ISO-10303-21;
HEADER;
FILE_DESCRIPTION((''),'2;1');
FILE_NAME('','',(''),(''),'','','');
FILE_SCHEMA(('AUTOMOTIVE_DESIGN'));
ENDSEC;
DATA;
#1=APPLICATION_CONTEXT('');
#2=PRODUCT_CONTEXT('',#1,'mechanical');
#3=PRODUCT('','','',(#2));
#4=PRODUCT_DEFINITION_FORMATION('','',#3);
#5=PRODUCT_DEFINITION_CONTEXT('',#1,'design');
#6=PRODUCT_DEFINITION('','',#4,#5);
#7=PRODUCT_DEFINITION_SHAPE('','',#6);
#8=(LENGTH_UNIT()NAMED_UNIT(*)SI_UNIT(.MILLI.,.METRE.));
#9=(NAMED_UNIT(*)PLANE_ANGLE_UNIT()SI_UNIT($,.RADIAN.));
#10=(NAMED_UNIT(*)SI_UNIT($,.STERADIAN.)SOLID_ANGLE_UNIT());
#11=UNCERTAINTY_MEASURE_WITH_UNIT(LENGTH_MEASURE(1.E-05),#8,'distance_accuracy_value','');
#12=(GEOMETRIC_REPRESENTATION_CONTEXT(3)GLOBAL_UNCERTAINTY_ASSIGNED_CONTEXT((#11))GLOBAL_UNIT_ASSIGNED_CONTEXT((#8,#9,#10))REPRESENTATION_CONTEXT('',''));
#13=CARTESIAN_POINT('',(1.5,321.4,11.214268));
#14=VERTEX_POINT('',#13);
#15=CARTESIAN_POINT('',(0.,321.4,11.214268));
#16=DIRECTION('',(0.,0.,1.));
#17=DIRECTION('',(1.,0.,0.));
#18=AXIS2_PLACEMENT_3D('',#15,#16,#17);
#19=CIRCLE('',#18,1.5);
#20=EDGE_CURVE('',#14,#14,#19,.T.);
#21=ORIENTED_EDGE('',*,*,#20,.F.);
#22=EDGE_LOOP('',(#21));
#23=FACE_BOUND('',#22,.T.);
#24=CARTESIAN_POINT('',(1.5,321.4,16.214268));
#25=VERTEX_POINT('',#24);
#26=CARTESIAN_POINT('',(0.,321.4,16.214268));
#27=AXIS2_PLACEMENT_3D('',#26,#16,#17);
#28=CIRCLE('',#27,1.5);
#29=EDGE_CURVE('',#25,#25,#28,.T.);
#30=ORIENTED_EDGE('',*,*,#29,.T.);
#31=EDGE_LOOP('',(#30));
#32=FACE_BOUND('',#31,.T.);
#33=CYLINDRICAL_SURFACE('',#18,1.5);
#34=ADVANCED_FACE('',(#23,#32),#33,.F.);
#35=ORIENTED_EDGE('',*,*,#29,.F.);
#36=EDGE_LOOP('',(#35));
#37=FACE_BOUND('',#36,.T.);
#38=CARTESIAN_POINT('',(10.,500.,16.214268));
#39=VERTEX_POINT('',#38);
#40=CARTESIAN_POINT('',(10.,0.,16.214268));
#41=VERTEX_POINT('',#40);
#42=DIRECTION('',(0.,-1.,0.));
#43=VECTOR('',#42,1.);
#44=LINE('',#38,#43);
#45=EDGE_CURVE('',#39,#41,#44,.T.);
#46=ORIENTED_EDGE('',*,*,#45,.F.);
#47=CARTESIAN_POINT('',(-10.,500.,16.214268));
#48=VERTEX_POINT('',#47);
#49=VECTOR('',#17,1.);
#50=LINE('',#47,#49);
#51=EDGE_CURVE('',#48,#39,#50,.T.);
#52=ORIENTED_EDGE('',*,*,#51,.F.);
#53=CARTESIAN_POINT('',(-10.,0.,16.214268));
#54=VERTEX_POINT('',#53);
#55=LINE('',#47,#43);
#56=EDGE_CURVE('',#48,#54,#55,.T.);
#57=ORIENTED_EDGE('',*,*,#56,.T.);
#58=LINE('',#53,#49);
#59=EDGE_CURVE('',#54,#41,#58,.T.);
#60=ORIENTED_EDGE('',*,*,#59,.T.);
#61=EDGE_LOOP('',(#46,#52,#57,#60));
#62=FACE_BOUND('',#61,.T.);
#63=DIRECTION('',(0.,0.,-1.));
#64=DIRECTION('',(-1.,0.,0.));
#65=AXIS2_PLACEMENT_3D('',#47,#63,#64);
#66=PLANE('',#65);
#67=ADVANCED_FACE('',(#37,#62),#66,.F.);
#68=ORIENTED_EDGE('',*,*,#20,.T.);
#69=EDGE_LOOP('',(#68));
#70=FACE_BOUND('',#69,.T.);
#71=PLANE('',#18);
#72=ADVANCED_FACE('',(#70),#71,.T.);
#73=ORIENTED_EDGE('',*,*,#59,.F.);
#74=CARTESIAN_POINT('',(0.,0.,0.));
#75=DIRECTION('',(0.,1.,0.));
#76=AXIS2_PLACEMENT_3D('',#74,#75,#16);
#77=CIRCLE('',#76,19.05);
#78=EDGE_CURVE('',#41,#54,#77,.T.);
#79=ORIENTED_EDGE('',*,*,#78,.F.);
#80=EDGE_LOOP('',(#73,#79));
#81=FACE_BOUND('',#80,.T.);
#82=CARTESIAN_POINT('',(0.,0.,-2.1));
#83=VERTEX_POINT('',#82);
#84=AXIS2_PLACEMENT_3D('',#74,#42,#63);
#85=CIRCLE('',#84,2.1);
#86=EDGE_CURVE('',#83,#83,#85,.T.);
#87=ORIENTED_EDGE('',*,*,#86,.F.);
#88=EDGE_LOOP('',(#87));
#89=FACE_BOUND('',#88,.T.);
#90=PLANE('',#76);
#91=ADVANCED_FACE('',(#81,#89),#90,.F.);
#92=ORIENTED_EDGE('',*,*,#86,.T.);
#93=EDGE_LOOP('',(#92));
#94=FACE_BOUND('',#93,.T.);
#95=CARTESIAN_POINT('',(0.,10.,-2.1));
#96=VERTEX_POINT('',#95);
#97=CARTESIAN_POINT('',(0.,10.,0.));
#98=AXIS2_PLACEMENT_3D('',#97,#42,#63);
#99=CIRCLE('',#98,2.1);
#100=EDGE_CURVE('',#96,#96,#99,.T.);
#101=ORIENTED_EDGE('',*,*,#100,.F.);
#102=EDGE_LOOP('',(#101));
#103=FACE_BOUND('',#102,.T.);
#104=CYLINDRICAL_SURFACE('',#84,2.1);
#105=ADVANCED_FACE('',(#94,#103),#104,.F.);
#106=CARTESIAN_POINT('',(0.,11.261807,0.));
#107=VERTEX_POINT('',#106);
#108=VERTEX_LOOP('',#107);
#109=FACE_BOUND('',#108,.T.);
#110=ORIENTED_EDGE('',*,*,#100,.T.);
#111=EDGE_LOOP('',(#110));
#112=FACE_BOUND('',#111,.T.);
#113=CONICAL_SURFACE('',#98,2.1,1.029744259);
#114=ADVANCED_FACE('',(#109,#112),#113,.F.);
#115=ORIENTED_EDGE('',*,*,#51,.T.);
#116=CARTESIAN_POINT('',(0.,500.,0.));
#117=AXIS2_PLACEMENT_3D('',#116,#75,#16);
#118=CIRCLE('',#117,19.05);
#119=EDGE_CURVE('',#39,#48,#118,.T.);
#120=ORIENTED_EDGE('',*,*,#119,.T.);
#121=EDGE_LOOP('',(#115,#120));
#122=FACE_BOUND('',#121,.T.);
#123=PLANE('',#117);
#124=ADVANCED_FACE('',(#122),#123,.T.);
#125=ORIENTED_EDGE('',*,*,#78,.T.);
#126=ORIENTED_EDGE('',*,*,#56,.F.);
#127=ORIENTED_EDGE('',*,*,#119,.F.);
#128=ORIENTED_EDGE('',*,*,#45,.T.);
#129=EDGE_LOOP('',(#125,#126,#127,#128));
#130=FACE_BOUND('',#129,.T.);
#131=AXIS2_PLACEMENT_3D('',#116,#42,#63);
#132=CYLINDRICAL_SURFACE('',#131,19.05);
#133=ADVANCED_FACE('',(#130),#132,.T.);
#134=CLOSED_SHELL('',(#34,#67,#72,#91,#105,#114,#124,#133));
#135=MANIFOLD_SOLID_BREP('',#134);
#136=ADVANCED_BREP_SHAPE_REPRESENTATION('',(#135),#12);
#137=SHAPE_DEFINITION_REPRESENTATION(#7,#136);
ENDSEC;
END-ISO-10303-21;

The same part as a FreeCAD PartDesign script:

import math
import FreeCAD as App
import Part
import Sketcher
from FreeCAD import Vector

doc = App.newDocument("Part")
params = doc.addObject("Spreadsheet::Sheet", "Params")
for row, (alias, value) in enumerate([
    ("sketch1_width", "20 mm"),
    ("sketch1_radius", "19.05 mm"),
    ("pad1_length", "500 mm"),
    ("sketch2_diameter", "3 mm"),
    ("pocket1_length", "5 mm"),
    ("sketch3_diameter", "4.2 mm"),
    ("hole_diameter", "4.2 mm"),
    ("hole_depth", "10 mm"),
], start=1):
    params.set(f"A{row}", alias)
    params.set(f"B{row}", "=" + value)
    params.setAlias(f"B{row}", alias)

body = doc.addObject("PartDesign::Body", "Body")

# Sketch on XZ plane
sketch1 = body.newObject("Sketcher::SketchObject", "Sketch")
sketch1.AttachmentSupport = (doc.getObject("XZ_Plane"), [""])
sketch1.MapMode = "FlatFace"
sketch1.addGeometry([
    Part.LineSegment(Vector(-10, 16, 0), Vector(10, 16, 0)),
    Part.ArcOfCircle(Part.Circle(Vector(0, 0, 0), Vector(0, 0, 1), 19), math.radians(122), math.radians(418)),
], False)
sketch1.addConstraint([
    Sketcher.Constraint("Coincident", 0, 1, 1, 1),
    Sketcher.Constraint("Coincident", 1, 2, 0, 2),
    Sketcher.Constraint("Horizontal", 0),
    Sketcher.Constraint("Coincident", 1, 3, -1, 1),
    Sketcher.Constraint("DistanceX", 0, 1, 0, 2, 20.0),
    Sketcher.Constraint("Radius", 1, 19.05),
])
sketch1.setExpression("Constraints[4]", "Params.sketch1_width")
sketch1.setExpression("Constraints[5]", "Params.sketch1_radius")
pad1 = body.newObject("PartDesign::Pad", "Pad")
pad1.Profile = sketch1
pad1.setExpression("Length", "Params.pad1_length")
pad1.Reversed = True

# Sketch on XY plane
sketch2 = body.newObject("Sketcher::SketchObject", "Sketch001")
sketch2.AttachmentSupport = (doc.getObject("XY_Plane"), [""])
sketch2.MapMode = "FlatFace"
sketch2.AttachmentOffset = App.Placement(Vector(0, 0, 16.214268), App.Rotation())
sketch2.addGeometry(Part.Circle(Vector(0, 321.4, 0), Vector(0, 0, 1), 1.5), False)
sketch2.addConstraint([
    Sketcher.Constraint("PointOnObject", 0, 3, -2),
    Sketcher.Constraint("Diameter", 0, 3.0),
    Sketcher.Constraint("DistanceY", -1, 1, 0, 3, 321.4),
])
sketch2.setExpression("Constraints[1]", "Params.sketch2_diameter")
pocket1 = body.newObject("PartDesign::Pocket", "Pocket")
pocket1.Profile = sketch2
pocket1.setExpression("Length", "Params.pocket1_length")

# Sketch on XZ plane
sketch3 = body.newObject("Sketcher::SketchObject", "Sketch002")
sketch3.AttachmentSupport = (doc.getObject("XZ_Plane"), [""])
sketch3.MapMode = "FlatFace"
sketch3.addGeometry(Part.Circle(Vector(0, 0, 0), Vector(0, 0, 1), 2.1), False)
sketch3.addConstraint([
    Sketcher.Constraint("Coincident", 0, 3, -1, 1),
    Sketcher.Constraint("Diameter", 0, 4.2),
])
sketch3.setExpression("Constraints[1]", "Params.sketch3_diameter")
doc.recompute()
hole = body.newObject("PartDesign::Hole", "Hole")
hole.Profile = sketch3
hole.ThreadType = "None"
hole.setExpression("Diameter", "Params.hole_diameter")
hole.DepthType = "Dimension"
hole.setExpression("Depth", "Params.hole_depth")
hole.DrillPoint = "Angled"
hole.DrillPointAngle = 118

doc.recompute()
